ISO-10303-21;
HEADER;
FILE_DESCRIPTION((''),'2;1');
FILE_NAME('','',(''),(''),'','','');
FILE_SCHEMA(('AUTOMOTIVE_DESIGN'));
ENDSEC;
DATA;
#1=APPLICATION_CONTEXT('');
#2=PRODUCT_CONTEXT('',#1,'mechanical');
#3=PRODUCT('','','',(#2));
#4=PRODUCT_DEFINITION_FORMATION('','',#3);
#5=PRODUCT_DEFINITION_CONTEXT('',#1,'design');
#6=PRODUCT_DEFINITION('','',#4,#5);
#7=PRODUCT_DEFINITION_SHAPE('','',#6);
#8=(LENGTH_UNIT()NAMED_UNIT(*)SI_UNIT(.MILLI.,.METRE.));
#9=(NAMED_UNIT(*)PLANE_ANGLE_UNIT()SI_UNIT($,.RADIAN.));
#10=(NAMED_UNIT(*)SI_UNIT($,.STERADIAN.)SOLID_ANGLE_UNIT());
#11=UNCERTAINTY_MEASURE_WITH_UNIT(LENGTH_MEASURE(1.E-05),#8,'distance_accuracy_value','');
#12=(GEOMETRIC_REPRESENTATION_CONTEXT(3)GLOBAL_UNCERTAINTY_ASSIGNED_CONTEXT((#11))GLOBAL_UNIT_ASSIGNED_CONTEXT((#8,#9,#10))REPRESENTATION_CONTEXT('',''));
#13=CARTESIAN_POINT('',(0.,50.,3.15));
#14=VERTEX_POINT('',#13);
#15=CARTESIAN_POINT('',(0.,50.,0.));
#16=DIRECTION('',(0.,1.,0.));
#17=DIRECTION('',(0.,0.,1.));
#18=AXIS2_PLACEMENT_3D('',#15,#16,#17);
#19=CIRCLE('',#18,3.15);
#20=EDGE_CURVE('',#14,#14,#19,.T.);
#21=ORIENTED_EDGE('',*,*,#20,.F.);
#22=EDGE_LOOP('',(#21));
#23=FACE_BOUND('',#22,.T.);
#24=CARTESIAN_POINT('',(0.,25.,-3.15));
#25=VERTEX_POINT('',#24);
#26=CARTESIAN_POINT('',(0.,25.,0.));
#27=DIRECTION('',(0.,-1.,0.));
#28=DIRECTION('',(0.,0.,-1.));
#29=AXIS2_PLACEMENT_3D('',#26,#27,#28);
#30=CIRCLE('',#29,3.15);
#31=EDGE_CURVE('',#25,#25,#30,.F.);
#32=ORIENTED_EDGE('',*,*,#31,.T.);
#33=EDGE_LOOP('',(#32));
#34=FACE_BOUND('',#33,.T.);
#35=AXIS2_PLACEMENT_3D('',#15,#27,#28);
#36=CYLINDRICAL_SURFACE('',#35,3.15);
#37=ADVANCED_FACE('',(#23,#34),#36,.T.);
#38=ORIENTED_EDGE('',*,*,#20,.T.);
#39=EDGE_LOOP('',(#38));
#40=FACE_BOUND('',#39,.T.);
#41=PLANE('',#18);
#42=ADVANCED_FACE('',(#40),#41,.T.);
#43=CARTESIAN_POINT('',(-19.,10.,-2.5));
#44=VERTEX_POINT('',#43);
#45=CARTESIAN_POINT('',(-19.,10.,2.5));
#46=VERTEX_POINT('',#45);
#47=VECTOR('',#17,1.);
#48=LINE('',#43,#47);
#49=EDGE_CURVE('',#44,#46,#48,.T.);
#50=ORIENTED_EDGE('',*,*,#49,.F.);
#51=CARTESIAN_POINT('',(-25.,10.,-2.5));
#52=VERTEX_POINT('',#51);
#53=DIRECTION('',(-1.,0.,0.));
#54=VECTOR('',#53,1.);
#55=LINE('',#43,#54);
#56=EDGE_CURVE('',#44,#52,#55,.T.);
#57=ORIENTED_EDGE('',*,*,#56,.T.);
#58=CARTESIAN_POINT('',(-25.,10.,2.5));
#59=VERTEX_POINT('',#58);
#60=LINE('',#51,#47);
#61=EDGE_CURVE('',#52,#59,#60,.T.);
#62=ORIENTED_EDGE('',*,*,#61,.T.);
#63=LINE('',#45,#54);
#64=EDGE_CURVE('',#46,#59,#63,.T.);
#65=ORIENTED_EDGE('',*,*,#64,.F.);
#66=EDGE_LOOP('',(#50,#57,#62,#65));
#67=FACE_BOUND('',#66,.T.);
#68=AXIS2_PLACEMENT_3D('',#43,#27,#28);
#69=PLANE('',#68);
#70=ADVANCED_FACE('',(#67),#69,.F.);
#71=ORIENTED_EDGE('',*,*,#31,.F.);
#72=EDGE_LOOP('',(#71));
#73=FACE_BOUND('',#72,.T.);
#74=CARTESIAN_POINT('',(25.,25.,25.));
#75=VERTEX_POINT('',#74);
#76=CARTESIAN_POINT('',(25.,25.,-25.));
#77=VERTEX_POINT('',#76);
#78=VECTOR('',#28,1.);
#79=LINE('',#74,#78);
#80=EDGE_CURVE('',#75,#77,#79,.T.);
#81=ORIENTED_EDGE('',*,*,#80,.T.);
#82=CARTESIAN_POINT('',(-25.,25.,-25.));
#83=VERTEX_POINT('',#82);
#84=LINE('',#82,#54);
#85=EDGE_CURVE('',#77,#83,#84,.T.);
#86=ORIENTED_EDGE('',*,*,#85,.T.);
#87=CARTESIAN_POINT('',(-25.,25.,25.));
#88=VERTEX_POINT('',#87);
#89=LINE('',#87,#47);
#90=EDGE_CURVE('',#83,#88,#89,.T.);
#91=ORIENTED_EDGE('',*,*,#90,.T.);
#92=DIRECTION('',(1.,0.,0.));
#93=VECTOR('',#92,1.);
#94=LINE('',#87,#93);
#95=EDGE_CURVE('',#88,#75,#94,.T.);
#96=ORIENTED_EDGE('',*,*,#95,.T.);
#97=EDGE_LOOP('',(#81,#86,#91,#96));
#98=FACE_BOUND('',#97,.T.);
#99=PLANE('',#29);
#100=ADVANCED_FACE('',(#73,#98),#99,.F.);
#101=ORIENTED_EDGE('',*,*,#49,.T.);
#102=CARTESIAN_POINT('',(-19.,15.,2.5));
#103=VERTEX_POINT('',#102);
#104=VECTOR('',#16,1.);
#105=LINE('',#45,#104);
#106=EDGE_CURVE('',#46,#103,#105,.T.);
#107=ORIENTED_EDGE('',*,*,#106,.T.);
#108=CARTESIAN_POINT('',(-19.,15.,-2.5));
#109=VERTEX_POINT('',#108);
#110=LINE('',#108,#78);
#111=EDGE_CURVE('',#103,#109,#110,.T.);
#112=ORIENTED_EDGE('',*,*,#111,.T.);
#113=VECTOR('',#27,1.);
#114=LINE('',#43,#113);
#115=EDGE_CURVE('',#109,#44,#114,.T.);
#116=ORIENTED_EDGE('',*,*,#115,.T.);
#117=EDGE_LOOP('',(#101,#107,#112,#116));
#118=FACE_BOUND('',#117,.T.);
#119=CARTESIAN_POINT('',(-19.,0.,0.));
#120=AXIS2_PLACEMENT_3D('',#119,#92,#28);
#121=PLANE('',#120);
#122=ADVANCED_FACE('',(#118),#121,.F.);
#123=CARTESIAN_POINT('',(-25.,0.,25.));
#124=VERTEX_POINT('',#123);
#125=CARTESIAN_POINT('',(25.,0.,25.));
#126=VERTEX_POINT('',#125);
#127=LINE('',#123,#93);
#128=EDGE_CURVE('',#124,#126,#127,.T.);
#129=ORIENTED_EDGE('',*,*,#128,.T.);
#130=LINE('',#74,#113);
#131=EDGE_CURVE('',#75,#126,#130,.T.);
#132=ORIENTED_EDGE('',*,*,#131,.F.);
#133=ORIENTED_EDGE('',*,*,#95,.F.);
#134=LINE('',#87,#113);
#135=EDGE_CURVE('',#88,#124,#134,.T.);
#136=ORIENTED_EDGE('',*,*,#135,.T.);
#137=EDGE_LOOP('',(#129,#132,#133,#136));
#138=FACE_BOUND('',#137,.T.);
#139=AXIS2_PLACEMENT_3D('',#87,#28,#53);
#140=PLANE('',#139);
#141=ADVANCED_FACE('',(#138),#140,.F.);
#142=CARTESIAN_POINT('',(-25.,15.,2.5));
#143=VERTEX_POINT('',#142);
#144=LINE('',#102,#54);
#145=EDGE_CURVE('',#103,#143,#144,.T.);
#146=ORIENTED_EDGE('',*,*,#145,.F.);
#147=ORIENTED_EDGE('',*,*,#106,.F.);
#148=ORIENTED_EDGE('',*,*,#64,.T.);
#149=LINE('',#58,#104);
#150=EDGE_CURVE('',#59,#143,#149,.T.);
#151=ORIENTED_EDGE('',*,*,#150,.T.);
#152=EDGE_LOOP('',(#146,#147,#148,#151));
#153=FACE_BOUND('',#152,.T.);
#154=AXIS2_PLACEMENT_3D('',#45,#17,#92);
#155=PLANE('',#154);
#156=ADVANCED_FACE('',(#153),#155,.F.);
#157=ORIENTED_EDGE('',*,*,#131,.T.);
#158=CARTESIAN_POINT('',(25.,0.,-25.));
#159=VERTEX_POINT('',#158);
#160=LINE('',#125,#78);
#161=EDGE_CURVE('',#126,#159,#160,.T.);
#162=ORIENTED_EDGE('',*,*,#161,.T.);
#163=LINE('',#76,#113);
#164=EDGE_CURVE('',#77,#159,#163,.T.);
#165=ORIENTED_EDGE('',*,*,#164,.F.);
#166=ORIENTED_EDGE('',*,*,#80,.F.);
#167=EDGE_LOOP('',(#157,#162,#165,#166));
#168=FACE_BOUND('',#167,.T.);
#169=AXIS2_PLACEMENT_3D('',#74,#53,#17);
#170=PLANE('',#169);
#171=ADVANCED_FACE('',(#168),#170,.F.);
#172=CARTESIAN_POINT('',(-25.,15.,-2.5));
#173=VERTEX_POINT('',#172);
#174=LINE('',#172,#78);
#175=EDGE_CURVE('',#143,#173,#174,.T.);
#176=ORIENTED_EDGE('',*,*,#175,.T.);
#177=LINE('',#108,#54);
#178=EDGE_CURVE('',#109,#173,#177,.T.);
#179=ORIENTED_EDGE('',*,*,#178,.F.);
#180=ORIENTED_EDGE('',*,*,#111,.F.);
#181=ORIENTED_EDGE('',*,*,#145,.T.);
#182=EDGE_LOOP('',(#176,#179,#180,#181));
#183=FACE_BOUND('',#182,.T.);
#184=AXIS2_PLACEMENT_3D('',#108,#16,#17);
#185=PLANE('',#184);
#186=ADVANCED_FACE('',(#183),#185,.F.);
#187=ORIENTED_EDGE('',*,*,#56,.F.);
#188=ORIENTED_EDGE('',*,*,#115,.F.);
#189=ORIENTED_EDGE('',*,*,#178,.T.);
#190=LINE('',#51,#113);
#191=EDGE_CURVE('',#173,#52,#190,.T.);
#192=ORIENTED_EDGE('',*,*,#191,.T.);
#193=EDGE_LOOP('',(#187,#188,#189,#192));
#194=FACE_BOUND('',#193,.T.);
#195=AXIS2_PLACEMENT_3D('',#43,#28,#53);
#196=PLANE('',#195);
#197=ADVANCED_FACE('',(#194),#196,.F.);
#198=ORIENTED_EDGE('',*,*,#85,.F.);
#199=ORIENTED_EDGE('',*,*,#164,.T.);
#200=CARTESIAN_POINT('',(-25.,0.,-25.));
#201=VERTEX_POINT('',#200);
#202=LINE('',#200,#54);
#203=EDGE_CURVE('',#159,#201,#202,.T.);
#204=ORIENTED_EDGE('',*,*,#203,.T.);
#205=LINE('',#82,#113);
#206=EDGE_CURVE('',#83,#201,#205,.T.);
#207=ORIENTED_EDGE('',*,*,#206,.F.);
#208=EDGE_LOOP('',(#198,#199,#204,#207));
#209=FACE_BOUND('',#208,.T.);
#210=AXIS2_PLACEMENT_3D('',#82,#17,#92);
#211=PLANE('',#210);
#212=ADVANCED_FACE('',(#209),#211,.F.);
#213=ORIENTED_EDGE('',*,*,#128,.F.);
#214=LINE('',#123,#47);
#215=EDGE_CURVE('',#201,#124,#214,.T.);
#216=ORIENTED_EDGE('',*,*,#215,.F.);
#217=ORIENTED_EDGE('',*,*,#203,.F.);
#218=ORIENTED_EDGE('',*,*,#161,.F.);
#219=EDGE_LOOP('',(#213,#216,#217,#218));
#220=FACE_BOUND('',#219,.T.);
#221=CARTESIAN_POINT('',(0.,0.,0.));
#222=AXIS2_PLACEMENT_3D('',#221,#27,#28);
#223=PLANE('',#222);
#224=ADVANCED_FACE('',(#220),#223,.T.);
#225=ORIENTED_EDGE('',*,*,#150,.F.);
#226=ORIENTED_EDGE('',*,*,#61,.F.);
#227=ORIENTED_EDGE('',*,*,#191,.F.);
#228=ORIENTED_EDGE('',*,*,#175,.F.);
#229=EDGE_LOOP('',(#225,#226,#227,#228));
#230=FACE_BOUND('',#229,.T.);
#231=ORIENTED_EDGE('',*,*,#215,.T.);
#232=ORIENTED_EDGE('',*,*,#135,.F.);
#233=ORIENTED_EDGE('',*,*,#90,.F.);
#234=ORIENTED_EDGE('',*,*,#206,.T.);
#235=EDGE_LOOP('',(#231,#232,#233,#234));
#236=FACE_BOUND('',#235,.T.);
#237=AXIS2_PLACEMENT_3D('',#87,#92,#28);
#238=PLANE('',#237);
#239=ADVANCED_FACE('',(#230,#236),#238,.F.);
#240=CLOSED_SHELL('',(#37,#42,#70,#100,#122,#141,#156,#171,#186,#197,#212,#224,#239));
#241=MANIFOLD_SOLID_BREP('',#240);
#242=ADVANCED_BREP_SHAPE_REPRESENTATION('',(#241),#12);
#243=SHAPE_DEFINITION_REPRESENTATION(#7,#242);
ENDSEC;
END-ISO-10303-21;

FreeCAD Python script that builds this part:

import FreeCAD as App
import Part
import Sketcher

doc = App.newDocument("Part")
body = doc.addObject("PartDesign::Body", "Body")

# Sketch on XZ plane
sketch1 = doc.addObject("Sketcher::SketchObject", "Sketch")
body.addObject(sketch1)
sketch1.AttachmentSupport = (doc.XZ_Plane, [""])
sketch1.MapMode = "FlatFace"
sketch1.addGeometry([
    Part.LineSegment(App.Vector(-25, -25, 0), App.Vector(-25, 25, 0)),
    Part.LineSegment(App.Vector(-25, 25, 0), App.Vector(25, 25, 0)),
    Part.LineSegment(App.Vector(25, 25, 0), App.Vector(25, -25, 0)),
    Part.LineSegment(App.Vector(25, -25, 0), App.Vector(-25, -25, 0)),
], False)
sketch1.addConstraint([
    Sketcher.Constraint("Coincident", 0, 2, 1, 1),
    Sketcher.Constraint("Coincident", 1, 2, 2, 1),
    Sketcher.Constraint("Coincident", 2, 2, 3, 1),
    Sketcher.Constraint("Coincident", 3, 2, 0, 1),
    Sketcher.Constraint("Vertical", 0),
    Sketcher.Constraint("Horizontal", 1),
    Sketcher.Constraint("Vertical", 2),
    Sketcher.Constraint("Horizontal", 3),
    Sketcher.Constraint("Symmetric", 0, 2, 2, 2, -1, 1),
    Sketcher.Constraint("Equal", 3, 0),
    Sketcher.Constraint("DistanceX", 1, 1, 1, 2, 50.0),
])
pad1 = doc.addObject("PartDesign::Pad", "Pad")
body.addObject(pad1)
pad1.Profile = sketch1
pad1.Length = 25
pad1.Reversed = True

# Sketch on XZ plane
sketch2 = doc.addObject("Sketcher::SketchObject", "Sketch001")
body.addObject(sketch2)
sketch2.AttachmentSupport = (doc.XZ_Plane, [""])
sketch2.MapMode = "FlatFace"
sketch2.AttachmentOffset = App.Placement(App.Vector(0, 0, -25), App.Rotation())
sketch2.addGeometry(Part.Circle(App.Vector(0, 0, 0), App.Vector(0, 0, 1), 3.1), False)
sketch2.addConstraint([
    Sketcher.Constraint("Coincident", 0, 3, -1, 1),
    Sketcher.Constraint("Diameter", 0, 6.3),
])
pad2 = doc.addObject("PartDesign::Pad", "Pad001")
body.addObject(pad2)
pad2.Profile = sketch2
pad2.Length = 25
pad2.Reversed = True

# Sketch on YZ plane
sketch3 = doc.addObject("Sketcher::SketchObject", "Sketch002")
body.addObject(sketch3)
sketch3.AttachmentSupport = (doc.YZ_Plane, [""])
sketch3.MapMode = "FlatFace"
sketch3.AttachmentOffset = App.Placement(App.Vector(0, 0, -25), App.Rotation())
sketch3.addGeometry([
    Part.LineSegment(App.Vector(15, -2, 0), App.Vector(10, -2, 0)),
    Part.LineSegment(App.Vector(10, -2, 0), App.Vector(10, 2, 0)),
    Part.LineSegment(App.Vector(10, 2, 0), App.Vector(15, 2, 0)),
    Part.LineSegment(App.Vector(15, 2, 0), App.Vector(15, -2, 0)),
], False)
sketch3.addConstraint([
    Sketcher.Constraint("Coincident", 0, 2, 1, 1),
    Sketcher.Constraint("Coincident", 1, 2, 2, 1),
    Sketcher.Constraint("Coincident", 2, 2, 3, 1),
    Sketcher.Constraint("Coincident", 3, 2, 0, 1),
    Sketcher.Constraint("Horizontal", 0),
    Sketcher.Constraint("Vertical", 1),
    Sketcher.Constraint("Horizontal", 2),
    Sketcher.Constraint("Vertical", 3),
    Sketcher.Constraint("Equal", 2, 1),
    Sketcher.Constraint("DistanceX", 0, 2, 0, 1, 5.0),
    Sketcher.Constraint("DistanceX", -1, 1, 0, 2, 10.0),
    Sketcher.Constraint("DistanceY", 0, 2, -1, 1, 2.5),
])
pocket1 = doc.addObject("PartDesign::Pocket", "Pocket")
body.addObject(pocket1)
pocket1.Profile = sketch3
pocket1.Length = 6
pocket1.Reversed = True

doc.recompute()
